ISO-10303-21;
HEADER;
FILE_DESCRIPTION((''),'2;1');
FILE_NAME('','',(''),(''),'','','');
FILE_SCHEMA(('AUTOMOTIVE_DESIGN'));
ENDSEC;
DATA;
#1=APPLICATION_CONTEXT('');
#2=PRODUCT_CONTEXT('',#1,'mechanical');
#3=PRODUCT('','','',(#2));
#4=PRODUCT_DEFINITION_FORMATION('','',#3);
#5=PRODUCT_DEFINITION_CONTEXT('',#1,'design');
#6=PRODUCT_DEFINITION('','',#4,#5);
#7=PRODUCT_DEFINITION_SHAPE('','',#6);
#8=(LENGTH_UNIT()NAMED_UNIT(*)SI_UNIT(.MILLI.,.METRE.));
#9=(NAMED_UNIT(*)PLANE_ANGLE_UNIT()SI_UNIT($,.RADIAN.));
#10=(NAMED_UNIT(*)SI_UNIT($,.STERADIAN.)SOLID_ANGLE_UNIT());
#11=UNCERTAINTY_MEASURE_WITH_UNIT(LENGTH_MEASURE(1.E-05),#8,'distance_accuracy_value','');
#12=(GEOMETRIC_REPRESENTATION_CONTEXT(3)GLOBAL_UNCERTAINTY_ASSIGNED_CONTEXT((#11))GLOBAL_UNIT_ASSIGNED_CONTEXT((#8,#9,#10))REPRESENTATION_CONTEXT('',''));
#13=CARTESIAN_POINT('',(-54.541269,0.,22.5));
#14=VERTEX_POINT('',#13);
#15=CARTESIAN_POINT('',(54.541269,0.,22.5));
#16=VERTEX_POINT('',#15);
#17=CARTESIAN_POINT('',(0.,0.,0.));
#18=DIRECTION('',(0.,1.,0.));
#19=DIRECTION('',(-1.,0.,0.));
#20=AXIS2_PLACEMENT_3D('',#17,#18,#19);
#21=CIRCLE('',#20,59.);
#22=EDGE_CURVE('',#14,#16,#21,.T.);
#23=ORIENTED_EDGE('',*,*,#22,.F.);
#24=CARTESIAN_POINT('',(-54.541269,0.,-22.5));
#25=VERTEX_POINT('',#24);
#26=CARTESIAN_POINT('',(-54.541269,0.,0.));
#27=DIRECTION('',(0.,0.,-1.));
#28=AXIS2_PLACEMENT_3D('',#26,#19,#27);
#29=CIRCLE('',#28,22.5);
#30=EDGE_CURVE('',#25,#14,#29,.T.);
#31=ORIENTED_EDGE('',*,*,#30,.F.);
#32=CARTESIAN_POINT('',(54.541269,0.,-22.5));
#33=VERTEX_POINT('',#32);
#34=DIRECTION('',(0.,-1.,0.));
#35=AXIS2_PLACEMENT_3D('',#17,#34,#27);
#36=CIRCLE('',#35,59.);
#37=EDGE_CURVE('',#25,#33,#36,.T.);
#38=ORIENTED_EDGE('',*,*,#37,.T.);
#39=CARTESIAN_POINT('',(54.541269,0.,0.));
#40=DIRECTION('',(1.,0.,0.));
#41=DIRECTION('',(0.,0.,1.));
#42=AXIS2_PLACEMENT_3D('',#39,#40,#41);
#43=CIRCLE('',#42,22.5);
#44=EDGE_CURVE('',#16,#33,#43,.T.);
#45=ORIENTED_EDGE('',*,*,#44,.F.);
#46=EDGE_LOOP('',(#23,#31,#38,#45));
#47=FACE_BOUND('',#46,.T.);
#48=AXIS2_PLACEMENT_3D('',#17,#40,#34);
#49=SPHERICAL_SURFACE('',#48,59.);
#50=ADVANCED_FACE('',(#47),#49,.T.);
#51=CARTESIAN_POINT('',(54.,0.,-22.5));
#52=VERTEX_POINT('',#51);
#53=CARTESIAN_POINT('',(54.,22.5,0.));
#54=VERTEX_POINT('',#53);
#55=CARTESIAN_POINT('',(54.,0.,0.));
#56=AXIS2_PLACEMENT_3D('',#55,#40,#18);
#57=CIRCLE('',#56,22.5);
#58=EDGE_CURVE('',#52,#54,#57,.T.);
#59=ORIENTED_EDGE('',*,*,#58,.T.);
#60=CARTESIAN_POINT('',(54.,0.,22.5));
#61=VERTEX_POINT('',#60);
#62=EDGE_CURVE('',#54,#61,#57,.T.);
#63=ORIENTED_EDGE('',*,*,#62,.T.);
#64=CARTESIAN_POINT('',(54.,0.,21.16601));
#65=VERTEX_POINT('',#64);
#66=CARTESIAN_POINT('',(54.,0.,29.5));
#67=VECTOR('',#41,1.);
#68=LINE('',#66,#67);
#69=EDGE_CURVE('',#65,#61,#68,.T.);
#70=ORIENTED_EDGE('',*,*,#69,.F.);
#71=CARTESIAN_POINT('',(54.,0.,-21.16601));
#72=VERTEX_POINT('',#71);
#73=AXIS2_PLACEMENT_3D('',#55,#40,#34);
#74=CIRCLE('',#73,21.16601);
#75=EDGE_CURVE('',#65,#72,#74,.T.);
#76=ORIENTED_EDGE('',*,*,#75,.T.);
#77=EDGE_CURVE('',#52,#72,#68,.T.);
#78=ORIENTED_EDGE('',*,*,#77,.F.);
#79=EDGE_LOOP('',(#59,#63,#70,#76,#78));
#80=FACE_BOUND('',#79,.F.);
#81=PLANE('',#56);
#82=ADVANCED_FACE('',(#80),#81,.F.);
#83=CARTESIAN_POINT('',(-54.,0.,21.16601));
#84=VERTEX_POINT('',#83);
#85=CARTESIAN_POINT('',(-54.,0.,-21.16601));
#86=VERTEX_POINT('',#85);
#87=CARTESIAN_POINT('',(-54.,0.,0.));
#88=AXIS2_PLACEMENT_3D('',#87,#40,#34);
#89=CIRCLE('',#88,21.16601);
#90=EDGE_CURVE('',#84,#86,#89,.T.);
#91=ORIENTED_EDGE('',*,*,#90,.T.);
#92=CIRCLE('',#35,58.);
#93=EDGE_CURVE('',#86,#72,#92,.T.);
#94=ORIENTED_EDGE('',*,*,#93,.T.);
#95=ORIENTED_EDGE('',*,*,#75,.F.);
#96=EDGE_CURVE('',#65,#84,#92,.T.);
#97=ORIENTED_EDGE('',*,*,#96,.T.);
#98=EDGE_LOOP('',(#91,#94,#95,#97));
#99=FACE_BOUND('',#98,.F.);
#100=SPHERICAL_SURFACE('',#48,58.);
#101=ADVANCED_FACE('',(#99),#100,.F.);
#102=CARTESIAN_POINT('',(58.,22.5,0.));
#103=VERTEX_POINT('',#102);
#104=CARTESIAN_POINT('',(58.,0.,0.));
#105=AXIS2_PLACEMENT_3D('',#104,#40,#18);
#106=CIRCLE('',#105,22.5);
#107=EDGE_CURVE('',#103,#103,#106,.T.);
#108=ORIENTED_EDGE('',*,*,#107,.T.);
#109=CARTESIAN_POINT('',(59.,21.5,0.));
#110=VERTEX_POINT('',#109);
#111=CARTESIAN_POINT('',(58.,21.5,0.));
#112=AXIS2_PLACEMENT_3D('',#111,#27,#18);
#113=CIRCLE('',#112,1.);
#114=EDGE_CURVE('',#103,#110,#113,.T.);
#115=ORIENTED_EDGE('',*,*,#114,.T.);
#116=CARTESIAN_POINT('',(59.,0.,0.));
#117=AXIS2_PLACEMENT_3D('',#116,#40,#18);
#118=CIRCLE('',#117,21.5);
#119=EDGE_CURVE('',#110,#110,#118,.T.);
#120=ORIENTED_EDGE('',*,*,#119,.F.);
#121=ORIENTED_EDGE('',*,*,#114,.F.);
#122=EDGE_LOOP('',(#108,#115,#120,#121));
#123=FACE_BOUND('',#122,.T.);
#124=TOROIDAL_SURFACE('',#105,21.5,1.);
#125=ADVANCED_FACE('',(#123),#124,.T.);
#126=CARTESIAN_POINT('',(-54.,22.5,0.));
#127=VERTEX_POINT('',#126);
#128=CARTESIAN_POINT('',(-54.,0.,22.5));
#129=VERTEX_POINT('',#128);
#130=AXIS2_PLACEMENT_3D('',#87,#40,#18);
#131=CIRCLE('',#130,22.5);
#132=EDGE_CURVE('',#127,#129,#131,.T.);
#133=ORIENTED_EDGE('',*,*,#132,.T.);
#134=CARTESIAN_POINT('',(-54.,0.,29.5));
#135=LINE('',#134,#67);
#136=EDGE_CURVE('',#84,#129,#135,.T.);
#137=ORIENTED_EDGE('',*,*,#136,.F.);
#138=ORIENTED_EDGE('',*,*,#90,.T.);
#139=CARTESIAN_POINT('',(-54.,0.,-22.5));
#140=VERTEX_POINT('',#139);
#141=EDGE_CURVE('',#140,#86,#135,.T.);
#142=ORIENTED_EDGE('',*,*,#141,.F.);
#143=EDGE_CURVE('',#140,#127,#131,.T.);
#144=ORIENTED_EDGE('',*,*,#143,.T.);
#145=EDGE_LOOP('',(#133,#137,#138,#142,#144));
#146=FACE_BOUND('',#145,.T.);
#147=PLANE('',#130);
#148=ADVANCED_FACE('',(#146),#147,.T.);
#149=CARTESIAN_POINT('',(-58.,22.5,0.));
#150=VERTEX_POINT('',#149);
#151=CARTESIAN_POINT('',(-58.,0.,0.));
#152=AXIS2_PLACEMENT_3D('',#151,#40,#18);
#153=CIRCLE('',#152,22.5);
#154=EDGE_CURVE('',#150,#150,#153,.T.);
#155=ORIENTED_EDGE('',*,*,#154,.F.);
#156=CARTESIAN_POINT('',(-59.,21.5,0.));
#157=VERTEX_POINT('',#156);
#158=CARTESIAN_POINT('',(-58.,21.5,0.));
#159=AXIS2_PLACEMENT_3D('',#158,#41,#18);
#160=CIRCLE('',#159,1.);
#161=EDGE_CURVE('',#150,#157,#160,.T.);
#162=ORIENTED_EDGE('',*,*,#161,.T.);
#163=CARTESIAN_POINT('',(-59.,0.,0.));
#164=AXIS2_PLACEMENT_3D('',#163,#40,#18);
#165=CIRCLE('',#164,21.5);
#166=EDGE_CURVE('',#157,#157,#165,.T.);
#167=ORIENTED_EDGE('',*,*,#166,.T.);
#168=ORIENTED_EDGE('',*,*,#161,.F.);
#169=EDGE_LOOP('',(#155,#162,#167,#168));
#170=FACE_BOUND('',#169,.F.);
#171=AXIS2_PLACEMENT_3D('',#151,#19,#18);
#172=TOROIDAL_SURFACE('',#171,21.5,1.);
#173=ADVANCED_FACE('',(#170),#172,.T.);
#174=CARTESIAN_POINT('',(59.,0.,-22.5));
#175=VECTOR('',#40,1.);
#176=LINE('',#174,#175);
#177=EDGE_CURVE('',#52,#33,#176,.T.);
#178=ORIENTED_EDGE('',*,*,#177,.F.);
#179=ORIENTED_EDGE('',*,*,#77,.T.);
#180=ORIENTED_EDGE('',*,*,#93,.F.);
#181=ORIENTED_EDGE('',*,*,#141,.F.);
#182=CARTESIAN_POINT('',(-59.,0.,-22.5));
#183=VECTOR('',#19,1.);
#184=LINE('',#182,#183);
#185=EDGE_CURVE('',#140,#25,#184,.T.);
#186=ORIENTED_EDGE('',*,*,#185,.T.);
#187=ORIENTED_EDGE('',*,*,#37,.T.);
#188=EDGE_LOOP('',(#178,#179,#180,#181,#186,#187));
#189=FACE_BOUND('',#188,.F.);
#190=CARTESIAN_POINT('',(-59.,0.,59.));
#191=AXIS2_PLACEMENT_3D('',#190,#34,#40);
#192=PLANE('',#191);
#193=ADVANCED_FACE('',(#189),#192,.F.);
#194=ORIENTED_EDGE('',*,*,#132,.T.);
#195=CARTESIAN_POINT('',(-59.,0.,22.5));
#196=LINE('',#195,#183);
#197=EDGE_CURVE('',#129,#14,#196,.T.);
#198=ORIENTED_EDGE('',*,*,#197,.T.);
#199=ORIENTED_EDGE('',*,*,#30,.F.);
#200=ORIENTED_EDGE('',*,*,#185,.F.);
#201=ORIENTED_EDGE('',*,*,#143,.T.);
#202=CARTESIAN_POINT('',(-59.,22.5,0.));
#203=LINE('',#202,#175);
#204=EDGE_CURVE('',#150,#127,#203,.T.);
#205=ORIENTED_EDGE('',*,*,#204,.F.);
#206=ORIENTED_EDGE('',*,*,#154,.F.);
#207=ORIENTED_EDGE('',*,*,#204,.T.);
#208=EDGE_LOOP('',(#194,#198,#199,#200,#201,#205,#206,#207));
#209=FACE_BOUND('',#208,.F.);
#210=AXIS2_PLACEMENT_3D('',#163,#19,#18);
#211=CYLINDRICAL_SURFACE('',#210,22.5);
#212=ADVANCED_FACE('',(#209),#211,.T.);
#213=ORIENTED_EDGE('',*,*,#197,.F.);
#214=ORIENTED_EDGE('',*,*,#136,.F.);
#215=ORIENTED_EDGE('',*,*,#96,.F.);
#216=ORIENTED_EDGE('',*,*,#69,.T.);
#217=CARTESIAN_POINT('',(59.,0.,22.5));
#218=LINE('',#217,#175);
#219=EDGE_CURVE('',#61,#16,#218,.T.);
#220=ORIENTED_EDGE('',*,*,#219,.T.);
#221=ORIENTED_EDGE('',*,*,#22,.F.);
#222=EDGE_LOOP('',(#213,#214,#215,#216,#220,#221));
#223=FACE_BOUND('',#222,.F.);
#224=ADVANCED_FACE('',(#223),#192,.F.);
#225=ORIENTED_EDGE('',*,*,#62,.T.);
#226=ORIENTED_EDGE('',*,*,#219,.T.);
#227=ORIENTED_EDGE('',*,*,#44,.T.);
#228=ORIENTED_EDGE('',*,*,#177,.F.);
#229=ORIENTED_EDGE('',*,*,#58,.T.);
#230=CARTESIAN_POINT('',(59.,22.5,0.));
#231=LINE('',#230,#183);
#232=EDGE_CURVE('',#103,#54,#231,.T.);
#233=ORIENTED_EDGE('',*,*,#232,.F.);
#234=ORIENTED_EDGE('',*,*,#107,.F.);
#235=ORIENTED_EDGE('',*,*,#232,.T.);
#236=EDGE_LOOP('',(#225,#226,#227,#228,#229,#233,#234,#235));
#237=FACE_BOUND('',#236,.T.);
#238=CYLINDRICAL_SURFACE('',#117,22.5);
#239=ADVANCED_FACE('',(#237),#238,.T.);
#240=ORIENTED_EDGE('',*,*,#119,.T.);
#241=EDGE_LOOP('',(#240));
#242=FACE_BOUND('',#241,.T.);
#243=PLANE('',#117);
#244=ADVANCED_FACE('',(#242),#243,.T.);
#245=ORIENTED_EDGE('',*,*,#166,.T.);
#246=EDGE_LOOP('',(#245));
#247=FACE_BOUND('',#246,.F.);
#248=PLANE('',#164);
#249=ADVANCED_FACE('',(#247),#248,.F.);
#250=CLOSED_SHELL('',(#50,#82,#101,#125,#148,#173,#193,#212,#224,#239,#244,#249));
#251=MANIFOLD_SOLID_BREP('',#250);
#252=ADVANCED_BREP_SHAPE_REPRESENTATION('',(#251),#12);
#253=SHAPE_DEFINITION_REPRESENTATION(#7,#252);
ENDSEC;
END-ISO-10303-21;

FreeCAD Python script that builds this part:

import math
import FreeCAD as App
import Part
import Sketcher

V = App.Vector
Q = App.Units.Quantity


def edges_at(feature, points):
    """Names of the edges that pass closest to the given points."""
    edges = feature.Shape.Edges
    near = lambda p: min(range(len(edges)), key=lambda i: edges[i].distToShape(Part.Vertex(*p))[0])
    return sorted({f"Edge{near(p) + 1}" for p in points})

doc = App.newDocument("Part")
body = doc.addObject("PartDesign::Body", "Body")

# Sketch on XY plane
sketch1 = doc.addObject("Sketcher::SketchObject", "Sketch")
body.addObject(sketch1)
sketch1.AttachmentSupport = (doc.XY_Plane, [""])
sketch1.MapMode = "FlatFace"
sketch1.addGeometry(Part.LineSegment(V(-58, 0, 0), V(-59, 0, 0)), False)
sketch1.addGeometry(Part.ArcOfCircle(Part.Circle(V(0, 0, 0), V(0, 0, 1), 59), math.radians(180), math.radians(360)), False)
sketch1.addGeometry(Part.LineSegment(V(59, 0, 0), V(58, 0, 0)), False)
sketch1.addGeometry(Part.ArcOfCircle(Part.Circle(V(0, 0, 0), V(0, 0, 1), 58), math.radians(180), math.radians(360)), False)
sketch1.addConstraint(Sketcher.Constraint("Coincident", 0, 2, 1, 1))
sketch1.addConstraint(Sketcher.Constraint("Coincident", 1, 2, 2, 1))
sketch1.addConstraint(Sketcher.Constraint("Coincident", 2, 2, 3, 2))
sketch1.addConstraint(Sketcher.Constraint("Coincident", 3, 1, 0, 1))
sketch1.addConstraint(Sketcher.Constraint("Horizontal", 0))
sketch1.addConstraint(Sketcher.Constraint("Horizontal", 2))
sketch1.addConstraint(Sketcher.Constraint("Coincident", 1, 3, -1, 1))
sketch1.addConstraint(Sketcher.Constraint("Coincident", 3, 3, -1, 1))
sketch1.addConstraint(Sketcher.Constraint("PointOnObject", 0, 2, -1))
sketch1.addConstraint(Sketcher.Constraint("PointOnObject", 1, 2, -1))
sketch1.addConstraint(Sketcher.Constraint("Radius", 1, Q("59 mm")))
sketch1.addConstraint(Sketcher.Constraint("Radius", 3, Q("58 mm")))
revolution = doc.addObject("PartDesign::Revolution", "Revolution")
body.addObject(revolution)
revolution.Profile = sketch1
revolution.ReferenceAxis = (sketch1, ["H_Axis"])
revolution.Angle = 360

# Sketch on XY plane
sketch2 = doc.addObject("Sketcher::SketchObject", "Sketch001")
body.addObject(sketch2)
sketch2.AttachmentSupport = (doc.XY_Plane, [""])
sketch2.MapMode = "FlatFace"
sketch2.AttachmentOffset = App.Placement(V(0, 0, 59), App.Rotation())
sketch2.addGeometry(Part.LineSegment(V(-59, 0, 0), V(59, 0, 0)), False)
sketch2.addGeometry(Part.ArcOfCircle(Part.Circle(V(0, 0, 0), V(0, 0, 1), 59), math.radians(0), math.radians(180)), False)
sketch2.addConstraint(Sketcher.Constraint("Coincident", 0, 1, 1, 2))
sketch2.addConstraint(Sketcher.Constraint("Coincident", 1, 1, 0, 2))
sketch2.addConstraint(Sketcher.Constraint("Horizontal", 0))
sketch2.addConstraint(Sketcher.Constraint("Coincident", 1, 3, -1, 1))
sketch2.addConstraint(Sketcher.Constraint("PointOnObject", 0, 1, -1))
sketch2.addConstraint(Sketcher.Constraint("Radius", 1, Q("59 mm")))
pocket1 = doc.addObject("PartDesign::Pocket", "Pocket")
body.addObject(pocket1)
pocket1.Profile = sketch2
pocket1.Type = "ThroughAll"

# Sketch on YZ plane
sketch3 = doc.addObject("Sketcher::SketchObject", "Sketch002")
body.addObject(sketch3)
sketch3.AttachmentSupport = (doc.YZ_Plane, [""])
sketch3.MapMode = "FlatFace"
sketch3.AttachmentOffset = App.Placement(V(0, 0, -59), App.Rotation())
sketch3.addGeometry(Part.Circle(V(0, 0, 0), V(0, 0, 1), 22.5), False)
sketch3.addConstraint(Sketcher.Constraint("Coincident", 0, 3, -1, 1))
sketch3.addConstraint(Sketcher.Constraint("Diameter", 0, Q("45 mm")))
pad1 = doc.addObject("PartDesign::Pad", "Pad")
body.addObject(pad1)
pad1.Profile = sketch3
pad1.Length = 5
doc.recompute()

fillet = doc.addObject("PartDesign::Fillet", "Fillet")
body.addObject(fillet)
fillet.Base = (pad1, edges_at(pad1, [(-59, -22.5, 0)]))
fillet.Radius = 1

# Sketch on YZ plane
sketch4 = doc.addObject("Sketcher::SketchObject", "Sketch003")
body.addObject(sketch4)
sketch4.AttachmentSupport = (doc.YZ_Plane, [""])
sketch4.MapMode = "FlatFace"
sketch4.AttachmentOffset = App.Placement(V(0, 0, 59), App.Rotation())
sketch4.addGeometry(Part.Circle(V(0, 0, 0), V(0, 0, 1), 22.5), False)
sketch4.addConstraint(Sketcher.Constraint("Coincident", 0, 3, -1, 1))
sketch4.addConstraint(Sketcher.Constraint("Diameter", 0, Q("45 mm")))
pad2 = doc.addObject("PartDesign::Pad", "Pad001")
body.addObject(pad2)
pad2.Profile = sketch4
pad2.Length = 5
pad2.Reversed = True
doc.recompute()

fillet2 = doc.addObject("PartDesign::Fillet", "Fillet001")
body.addObject(fillet2)
fillet2.Base = (pad2, edges_at(pad2, [(59, -22.5, 0)]))
fillet2.Radius = 1

doc.recompute()
